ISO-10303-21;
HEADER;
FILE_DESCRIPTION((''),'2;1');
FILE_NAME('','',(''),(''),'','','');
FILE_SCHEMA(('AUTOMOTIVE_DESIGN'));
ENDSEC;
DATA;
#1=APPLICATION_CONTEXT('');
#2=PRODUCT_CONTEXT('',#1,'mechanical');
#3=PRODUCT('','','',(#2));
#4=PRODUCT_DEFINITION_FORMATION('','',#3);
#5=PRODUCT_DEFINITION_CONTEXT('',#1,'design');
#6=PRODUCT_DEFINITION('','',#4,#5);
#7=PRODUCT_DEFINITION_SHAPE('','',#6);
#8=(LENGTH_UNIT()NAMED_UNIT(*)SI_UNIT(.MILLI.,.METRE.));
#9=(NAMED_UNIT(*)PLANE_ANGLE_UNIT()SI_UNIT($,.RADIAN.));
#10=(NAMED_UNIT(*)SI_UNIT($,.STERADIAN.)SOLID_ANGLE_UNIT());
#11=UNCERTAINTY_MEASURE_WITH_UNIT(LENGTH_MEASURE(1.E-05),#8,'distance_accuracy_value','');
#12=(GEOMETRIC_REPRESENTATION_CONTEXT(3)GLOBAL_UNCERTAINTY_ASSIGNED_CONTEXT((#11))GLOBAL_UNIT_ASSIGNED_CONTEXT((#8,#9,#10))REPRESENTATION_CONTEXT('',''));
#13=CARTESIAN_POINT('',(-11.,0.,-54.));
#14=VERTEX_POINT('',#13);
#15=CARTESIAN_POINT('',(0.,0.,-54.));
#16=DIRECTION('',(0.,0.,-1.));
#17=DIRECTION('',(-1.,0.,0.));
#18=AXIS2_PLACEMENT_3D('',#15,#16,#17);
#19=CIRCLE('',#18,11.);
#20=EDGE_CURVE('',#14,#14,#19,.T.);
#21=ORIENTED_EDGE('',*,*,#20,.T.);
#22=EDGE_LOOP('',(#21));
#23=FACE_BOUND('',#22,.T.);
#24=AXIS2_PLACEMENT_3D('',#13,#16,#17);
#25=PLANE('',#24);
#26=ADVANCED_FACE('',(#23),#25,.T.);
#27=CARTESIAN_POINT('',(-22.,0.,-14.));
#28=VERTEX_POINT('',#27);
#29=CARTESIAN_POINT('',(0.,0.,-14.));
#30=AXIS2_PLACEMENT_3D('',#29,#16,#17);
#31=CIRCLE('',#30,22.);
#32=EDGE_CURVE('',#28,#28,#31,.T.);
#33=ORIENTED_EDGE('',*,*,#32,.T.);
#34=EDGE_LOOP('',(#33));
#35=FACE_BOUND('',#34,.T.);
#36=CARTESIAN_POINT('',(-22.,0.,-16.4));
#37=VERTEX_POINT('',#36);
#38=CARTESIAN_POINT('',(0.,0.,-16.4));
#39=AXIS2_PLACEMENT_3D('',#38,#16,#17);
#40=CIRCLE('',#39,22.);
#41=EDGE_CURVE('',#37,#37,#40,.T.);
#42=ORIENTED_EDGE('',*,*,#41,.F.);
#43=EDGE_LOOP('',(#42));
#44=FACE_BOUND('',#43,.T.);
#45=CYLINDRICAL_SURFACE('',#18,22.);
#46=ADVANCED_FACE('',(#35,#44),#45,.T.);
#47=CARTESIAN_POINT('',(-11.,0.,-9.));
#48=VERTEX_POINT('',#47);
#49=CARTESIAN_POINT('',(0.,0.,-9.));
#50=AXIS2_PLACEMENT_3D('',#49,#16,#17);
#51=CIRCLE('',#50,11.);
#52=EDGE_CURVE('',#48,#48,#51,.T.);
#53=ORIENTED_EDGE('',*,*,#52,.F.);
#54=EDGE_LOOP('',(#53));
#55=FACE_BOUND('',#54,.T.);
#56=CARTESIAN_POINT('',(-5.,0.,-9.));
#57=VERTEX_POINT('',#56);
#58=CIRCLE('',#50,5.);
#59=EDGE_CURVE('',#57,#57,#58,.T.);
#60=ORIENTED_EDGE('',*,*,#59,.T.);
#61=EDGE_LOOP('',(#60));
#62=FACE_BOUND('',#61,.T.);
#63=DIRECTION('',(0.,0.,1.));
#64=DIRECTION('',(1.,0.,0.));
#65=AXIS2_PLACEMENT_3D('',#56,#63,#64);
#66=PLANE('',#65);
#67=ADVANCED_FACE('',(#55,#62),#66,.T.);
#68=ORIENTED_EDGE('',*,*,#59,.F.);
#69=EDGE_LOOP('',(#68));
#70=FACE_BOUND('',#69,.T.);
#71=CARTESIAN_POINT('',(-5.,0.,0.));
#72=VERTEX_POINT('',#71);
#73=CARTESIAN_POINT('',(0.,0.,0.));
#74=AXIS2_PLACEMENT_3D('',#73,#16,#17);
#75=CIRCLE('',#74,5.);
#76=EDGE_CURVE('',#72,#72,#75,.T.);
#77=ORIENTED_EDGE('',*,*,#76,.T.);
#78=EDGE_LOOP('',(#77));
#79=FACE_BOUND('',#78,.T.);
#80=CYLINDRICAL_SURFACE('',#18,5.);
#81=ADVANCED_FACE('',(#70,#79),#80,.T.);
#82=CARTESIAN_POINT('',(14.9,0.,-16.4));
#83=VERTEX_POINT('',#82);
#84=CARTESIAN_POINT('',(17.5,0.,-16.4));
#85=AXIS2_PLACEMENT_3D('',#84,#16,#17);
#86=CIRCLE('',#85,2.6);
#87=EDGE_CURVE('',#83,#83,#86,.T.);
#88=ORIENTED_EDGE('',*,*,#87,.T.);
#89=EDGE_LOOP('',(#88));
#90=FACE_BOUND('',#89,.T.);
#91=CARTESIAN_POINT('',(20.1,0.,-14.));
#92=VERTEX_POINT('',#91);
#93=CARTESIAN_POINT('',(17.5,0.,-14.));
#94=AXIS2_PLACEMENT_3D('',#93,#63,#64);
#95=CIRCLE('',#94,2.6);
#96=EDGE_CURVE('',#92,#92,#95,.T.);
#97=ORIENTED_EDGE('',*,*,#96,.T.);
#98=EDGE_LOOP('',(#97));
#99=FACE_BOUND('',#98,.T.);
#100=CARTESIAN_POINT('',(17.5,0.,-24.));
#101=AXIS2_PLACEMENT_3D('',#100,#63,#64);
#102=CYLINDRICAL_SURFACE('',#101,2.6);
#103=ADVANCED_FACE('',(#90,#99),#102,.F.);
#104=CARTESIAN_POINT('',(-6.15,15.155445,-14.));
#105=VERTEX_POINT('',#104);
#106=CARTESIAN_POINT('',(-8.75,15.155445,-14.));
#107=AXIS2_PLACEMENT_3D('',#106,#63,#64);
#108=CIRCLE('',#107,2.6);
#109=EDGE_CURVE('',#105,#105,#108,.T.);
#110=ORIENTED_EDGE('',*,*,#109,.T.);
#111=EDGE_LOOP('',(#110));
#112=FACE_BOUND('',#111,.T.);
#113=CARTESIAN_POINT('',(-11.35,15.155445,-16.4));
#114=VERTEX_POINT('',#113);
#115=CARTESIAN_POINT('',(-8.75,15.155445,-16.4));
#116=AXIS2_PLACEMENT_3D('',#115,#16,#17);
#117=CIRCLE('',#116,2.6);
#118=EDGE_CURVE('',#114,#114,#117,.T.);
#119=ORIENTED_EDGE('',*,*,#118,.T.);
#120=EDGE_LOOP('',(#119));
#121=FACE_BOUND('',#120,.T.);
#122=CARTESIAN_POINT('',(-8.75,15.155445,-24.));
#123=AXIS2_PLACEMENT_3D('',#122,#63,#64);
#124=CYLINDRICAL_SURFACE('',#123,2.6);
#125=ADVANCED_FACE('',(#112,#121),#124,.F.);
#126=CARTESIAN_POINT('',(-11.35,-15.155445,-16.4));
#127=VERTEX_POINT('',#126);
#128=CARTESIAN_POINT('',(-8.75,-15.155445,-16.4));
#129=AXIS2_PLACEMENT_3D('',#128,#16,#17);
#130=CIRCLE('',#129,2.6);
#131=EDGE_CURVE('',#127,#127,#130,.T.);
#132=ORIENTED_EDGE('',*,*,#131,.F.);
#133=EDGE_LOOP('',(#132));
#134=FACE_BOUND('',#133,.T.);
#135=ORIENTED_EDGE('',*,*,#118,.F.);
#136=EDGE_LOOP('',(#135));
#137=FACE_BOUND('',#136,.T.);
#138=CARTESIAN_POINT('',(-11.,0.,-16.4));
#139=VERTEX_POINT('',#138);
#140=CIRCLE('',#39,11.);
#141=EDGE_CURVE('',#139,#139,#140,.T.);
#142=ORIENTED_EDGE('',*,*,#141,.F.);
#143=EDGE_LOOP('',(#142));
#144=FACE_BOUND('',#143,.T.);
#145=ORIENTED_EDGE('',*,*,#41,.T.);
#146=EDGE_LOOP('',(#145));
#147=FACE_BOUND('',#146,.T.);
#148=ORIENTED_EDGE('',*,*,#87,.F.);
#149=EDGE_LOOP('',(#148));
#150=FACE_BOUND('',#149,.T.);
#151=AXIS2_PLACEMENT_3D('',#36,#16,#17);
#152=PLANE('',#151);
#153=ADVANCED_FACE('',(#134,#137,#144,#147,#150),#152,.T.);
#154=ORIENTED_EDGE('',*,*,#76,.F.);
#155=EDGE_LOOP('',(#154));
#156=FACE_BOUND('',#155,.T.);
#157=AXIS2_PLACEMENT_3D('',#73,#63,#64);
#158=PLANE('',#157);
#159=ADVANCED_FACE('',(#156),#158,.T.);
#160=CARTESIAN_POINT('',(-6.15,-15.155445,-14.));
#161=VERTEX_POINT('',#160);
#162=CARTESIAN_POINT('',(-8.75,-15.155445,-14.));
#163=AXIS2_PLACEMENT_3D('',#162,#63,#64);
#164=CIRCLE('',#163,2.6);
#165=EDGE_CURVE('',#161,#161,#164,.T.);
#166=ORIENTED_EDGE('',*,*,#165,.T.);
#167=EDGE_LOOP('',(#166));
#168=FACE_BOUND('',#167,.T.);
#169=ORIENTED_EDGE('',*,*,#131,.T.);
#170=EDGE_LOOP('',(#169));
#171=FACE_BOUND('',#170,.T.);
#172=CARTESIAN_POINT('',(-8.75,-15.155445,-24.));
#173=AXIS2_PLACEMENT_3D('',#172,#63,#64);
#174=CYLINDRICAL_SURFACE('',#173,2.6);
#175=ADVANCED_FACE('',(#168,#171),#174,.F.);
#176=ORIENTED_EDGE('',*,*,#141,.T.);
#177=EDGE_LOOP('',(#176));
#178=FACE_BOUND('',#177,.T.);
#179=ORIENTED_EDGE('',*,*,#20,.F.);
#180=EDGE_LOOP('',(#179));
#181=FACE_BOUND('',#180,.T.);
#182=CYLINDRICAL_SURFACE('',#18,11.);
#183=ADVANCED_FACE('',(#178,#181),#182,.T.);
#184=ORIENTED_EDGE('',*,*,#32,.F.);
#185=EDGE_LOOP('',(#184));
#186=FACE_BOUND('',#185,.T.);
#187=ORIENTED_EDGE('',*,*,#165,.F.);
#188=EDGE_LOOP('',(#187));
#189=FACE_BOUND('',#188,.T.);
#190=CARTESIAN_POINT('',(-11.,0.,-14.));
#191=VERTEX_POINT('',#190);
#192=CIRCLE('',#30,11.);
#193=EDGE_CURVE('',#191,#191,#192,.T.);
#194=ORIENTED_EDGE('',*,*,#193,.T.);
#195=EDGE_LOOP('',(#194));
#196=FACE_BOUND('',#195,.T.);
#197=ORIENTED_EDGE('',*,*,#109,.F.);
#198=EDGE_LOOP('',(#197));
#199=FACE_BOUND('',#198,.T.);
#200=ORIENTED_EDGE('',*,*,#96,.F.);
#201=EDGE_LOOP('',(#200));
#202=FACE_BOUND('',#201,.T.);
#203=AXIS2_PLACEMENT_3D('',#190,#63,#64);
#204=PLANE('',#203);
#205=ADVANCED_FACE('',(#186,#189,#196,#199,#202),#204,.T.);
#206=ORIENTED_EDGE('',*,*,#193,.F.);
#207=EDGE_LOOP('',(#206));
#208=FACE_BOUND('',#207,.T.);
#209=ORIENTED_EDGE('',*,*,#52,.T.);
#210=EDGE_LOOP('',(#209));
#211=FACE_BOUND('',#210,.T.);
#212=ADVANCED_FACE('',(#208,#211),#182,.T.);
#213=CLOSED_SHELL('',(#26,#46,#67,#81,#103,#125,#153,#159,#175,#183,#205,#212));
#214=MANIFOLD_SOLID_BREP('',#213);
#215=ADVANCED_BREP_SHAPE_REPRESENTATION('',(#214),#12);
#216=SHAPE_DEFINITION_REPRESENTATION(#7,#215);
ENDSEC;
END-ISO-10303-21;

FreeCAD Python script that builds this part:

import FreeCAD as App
import Part
import Sketcher

V = App.Vector
Q = App.Units.Quantity

doc = App.newDocument("Part")
body = doc.addObject("PartDesign::Body", "Body")

# Sketch on XZ plane
sketch1 = body.newObject("Sketcher::SketchObject", "Sketch")
sketch1.AttachmentSupport = (doc.getObject("XZ_Plane"), [""])
sketch1.MapMode = "FlatFace"
sketch1.addGeometry(Part.LineSegment(V(-5, 0, 0), V(0, 0, 0)), False)
sketch1.addGeometry(Part.LineSegment(V(0, 0, 0), V(0, -54, 0)), False)
sketch1.addGeometry(Part.LineSegment(V(0, -54, 0), V(-11, -54, 0)), False)
sketch1.addGeometry(Part.LineSegment(V(-11, -54, 0), V(-11, -16.4, 0)), False)
sketch1.addGeometry(Part.LineSegment(V(-11, -16.4, 0), V(-22, -16.4, 0)), False)
sketch1.addGeometry(Part.LineSegment(V(-22, -16.4, 0), V(-22, -14, 0)), False)
sketch1.addGeometry(Part.LineSegment(V(-22, -14, 0), V(-11, -14, 0)), False)
sketch1.addGeometry(Part.LineSegment(V(-11, -14, 0), V(-11, -9, 0)), False)
sketch1.addGeometry(Part.LineSegment(V(-11, -9, 0), V(-5, -9, 0)), False)
sketch1.addGeometry(Part.LineSegment(V(-5, -9, 0), V(-5, 0, 0)), False)
sketch1.addConstraint(Sketcher.Constraint("Coincident", 0, 2, 1, 1))
sketch1.addConstraint(Sketcher.Constraint("Coincident", 1, 2, 2, 1))
sketch1.addConstraint(Sketcher.Constraint("Coincident", 2, 2, 3, 1))
sketch1.addConstraint(Sketcher.Constraint("Coincident", 3, 2, 4, 1))
sketch1.addConstraint(Sketcher.Constraint("Coincident", 4, 2, 5, 1))
sketch1.addConstraint(Sketcher.Constraint("Coincident", 5, 2, 6, 1))
sketch1.addConstraint(Sketcher.Constraint("Coincident", 6, 2, 7, 1))
sketch1.addConstraint(Sketcher.Constraint("Coincident", 7, 2, 8, 1))
sketch1.addConstraint(Sketcher.Constraint("Coincident", 8, 2, 9, 1))
sketch1.addConstraint(Sketcher.Constraint("Coincident", 9, 2, 0, 1))
sketch1.addConstraint(Sketcher.Constraint("Horizontal", 0))
sketch1.addConstraint(Sketcher.Constraint("Vertical", 1))
sketch1.addConstraint(Sketcher.Constraint("Horizontal", 2))
sketch1.addConstraint(Sketcher.Constraint("Vertical", 3))
sketch1.addConstraint(Sketcher.Constraint("Horizontal", 4))
sketch1.addConstraint(Sketcher.Constraint("Vertical", 5))
sketch1.addConstraint(Sketcher.Constraint("Horizontal", 6))
sketch1.addConstraint(Sketcher.Constraint("Vertical", 7))
sketch1.addConstraint(Sketcher.Constraint("Horizontal", 8))
sketch1.addConstraint(Sketcher.Constraint("Vertical", 9))
sketch1.addConstraint(Sketcher.Constraint("Coincident", 0, 2, -1, 1))
sketch1.addConstraint(Sketcher.Constraint("Vertical", 3, 2, 6, 2))
sketch1.addConstraint(Sketcher.Constraint("Equal", 2, 4))
sketch1.addConstraint(Sketcher.Constraint("Equal", 0, 7))
sketch1.addConstraint(Sketcher.Constraint("DistanceX", 0, 1, 0, 2, Q("5 mm")))
sketch1.addConstraint(Sketcher.Constraint("DistanceX", 2, 2, 2, 1, Q("11 mm")))
sketch1.addConstraint(Sketcher.Constraint("DistanceY", 1, 2, 1, 1, Q("54 mm")))
sketch1.addConstraint(Sketcher.Constraint("DistanceY", 9, 1, 9, 2, Q("9 mm")))
sketch1.addConstraint(Sketcher.Constraint("DistanceY", 3, 1, 3, 2, Q("37.6 mm")))
revolution = body.newObject("PartDesign::Revolution", "Revolution")
revolution.Profile = sketch1
revolution.ReferenceAxis = (sketch1, ["V_Axis"])
revolution.Angle = 360

# Sketch on XY plane
sketch2 = body.newObject("Sketcher::SketchObject", "Sketch001")
sketch2.AttachmentSupport = (doc.getObject("XY_Plane"), [""])
sketch2.MapMode = "FlatFace"
sketch2.AttachmentOffset = App.Placement(V(0, 0, -14), App.Rotation())
sketch2.addGeometry(Part.Circle(V(17.5, 0, 0), V(0, 0, 1), 2.6), False)
sketch2.addGeometry(Part.Circle(V(-8.8, -15.2, 0), V(0, 0, 1), 2.6), False)
sketch2.addGeometry(Part.Circle(V(-8.8, 15.2, 0), V(0, 0, 1), 2.6), False)
sketch2.addConstraint(Sketcher.Constraint("Equal", 0, 1))
sketch2.addConstraint(Sketcher.Constraint("Equal", 1, 2))
sketch2.addConstraint(Sketcher.Constraint("Symmetric", 1, 3, 2, 3, -1))
sketch2.addConstraint(Sketcher.Constraint("PointOnObject", 0, 3, -1))
sketch2.addConstraint(Sketcher.Constraint("Diameter", 0, Q("5.2 mm")))
sketch2.addConstraint(Sketcher.Constraint("DistanceX", -1, 1, 0, 3, Q("17.5 mm")))
sketch2.addConstraint(Sketcher.Constraint("DistanceX", 1, 3, -1, 1, Q("8.75 mm")))
sketch2.addConstraint(Sketcher.Constraint("DistanceY", 1, 3, 2, 3, Q("30.310889 mm")))
pocket1 = body.newObject("PartDesign::Pocket", "Pocket")
pocket1.Profile = sketch2
pocket1.Length = 10

doc.recompute()
